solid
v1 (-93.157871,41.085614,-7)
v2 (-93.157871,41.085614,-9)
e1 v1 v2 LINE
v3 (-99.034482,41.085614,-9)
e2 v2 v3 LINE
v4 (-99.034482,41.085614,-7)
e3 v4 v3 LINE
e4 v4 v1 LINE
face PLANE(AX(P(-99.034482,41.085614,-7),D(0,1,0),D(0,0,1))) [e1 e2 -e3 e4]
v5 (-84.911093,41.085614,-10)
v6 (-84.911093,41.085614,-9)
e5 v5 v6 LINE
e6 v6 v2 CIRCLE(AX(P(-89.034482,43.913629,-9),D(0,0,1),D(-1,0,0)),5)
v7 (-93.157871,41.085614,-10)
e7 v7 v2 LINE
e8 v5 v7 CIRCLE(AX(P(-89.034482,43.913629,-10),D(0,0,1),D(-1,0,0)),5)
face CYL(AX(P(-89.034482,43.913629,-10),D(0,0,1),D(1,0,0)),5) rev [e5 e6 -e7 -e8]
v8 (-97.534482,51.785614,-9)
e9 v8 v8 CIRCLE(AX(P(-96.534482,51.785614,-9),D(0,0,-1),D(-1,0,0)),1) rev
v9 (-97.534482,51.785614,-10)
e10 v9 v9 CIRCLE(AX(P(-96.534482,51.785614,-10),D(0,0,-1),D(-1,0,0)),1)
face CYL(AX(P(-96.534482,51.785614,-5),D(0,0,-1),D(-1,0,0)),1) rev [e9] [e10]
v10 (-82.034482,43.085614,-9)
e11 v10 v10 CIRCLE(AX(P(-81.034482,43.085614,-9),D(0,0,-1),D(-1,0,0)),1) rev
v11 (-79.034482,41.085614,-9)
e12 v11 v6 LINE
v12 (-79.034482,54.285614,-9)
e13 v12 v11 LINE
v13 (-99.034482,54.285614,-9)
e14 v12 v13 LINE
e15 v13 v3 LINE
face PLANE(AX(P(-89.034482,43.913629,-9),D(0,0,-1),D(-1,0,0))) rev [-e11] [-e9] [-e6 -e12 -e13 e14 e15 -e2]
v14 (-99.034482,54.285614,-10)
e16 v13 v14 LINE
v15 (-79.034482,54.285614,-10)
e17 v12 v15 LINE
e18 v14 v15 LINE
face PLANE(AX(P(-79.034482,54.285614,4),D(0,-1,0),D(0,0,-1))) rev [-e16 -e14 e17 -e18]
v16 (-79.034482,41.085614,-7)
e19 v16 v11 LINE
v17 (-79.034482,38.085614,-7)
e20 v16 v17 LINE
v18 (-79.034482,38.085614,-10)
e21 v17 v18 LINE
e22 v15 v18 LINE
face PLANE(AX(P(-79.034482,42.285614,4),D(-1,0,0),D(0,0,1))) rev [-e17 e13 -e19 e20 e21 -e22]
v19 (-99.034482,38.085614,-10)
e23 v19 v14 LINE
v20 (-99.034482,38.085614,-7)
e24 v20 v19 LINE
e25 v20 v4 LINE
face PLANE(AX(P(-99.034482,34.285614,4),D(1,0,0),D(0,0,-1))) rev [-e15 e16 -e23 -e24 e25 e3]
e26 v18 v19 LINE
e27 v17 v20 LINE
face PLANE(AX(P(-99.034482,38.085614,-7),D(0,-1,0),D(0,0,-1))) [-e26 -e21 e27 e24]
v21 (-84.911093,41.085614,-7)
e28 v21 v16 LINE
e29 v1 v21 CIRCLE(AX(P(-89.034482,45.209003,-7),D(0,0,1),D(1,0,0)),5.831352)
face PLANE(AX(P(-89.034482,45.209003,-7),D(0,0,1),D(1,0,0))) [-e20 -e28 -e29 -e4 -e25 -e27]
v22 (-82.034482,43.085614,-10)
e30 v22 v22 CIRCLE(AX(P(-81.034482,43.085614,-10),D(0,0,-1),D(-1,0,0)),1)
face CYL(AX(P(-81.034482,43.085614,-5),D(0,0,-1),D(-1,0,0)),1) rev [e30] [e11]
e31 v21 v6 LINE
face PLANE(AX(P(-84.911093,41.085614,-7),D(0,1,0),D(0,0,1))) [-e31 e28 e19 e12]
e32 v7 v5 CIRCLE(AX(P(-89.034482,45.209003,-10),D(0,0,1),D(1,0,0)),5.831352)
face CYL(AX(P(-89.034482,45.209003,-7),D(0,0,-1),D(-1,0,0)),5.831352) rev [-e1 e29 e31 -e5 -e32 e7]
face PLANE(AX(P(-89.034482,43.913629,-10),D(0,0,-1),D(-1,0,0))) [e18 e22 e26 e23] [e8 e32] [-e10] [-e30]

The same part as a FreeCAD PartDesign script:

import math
import FreeCAD as App
import Part
import Sketcher

V = App.Vector
Q = App.Units.Quantity

doc = App.newDocument("Part")
body = doc.addObject("PartDesign::Body", "Body")

# Sketch on XY plane
sketch1 = body.newObject("Sketcher::SketchObject", "Sketch")
sketch1.AttachmentSupport = (doc.getObject("XY_Plane"), [""])
sketch1.MapMode = "FlatFace"
sketch1.addGeometry([
    Part.LineSegment(V(-85.5, 34.3, 0), V(-79, 34.3, 0)),  # 0
    Part.LineSegment(V(-79, 34.3, 0), V(-79, 54.3, 0)),  # 1
    Part.LineSegment(V(-79, 54.3, 0), V(-99, 54.3, 0)),  # 2
    Part.LineSegment(V(-99, 54.3, 0), V(-99, 34.3, 0)),  # 3
    Part.LineSegment(V(-99, 34.3, 0), V(-92.5, 34.3, 0)),  # 4
    Part.LineSegment(V(-92.5, 34.3, 0), V(-92.5, 43.9, 0)),  # 5
    Part.ArcOfCircle(Part.Circle(V(-89, 43.9, 0), V(0, 0, 1), 3.5), math.radians(0), math.radians(180)),  # 6
    Part.LineSegment(V(-85.5, 43.9, 0), V(-85.5, 34.3, 0)),  # 7
    Part.Circle(V(-82, 38.3, 0), V(0, 0, 1), 1.6),  # 8
    Part.Circle(V(-96, 38.3, 0), V(0, 0, 1), 1.6),  # 9
], False)
sketch1.addConstraint([
    Sketcher.Constraint("Coincident", 0, 2, 1, 1),
    Sketcher.Constraint("Coincident", 1, 2, 2, 1),
    Sketcher.Constraint("Coincident", 2, 2, 3, 1),
    Sketcher.Constraint("Coincident", 3, 2, 4, 1),
    Sketcher.Constraint("Coincident", 4, 2, 5, 1),
    Sketcher.Constraint("Tangent", 5, 2, 6, 2),
    Sketcher.Constraint("Tangent", 6, 1, 7, 1),
    Sketcher.Constraint("Coincident", 7, 2, 0, 1),
    Sketcher.Constraint("Horizontal", 0),
    Sketcher.Constraint("Vertical", 1),
    Sketcher.Constraint("Horizontal", 2),
    Sketcher.Constraint("Vertical", 3),
    Sketcher.Constraint("Horizontal", 4),
    Sketcher.Constraint("Vertical", 5),
    Sketcher.Constraint("Vertical", 7),
    Sketcher.Constraint("Equal", 8, 9),
    Sketcher.Constraint("Horizontal", 8, 3, 9, 3),
    Sketcher.Constraint("Horizontal", 0, 2, 3, 2),
    Sketcher.Constraint("Equal", 0, 4),
    Sketcher.Constraint("Equal", 2, 1),
    Sketcher.Constraint("Radius", 6, Q("3.5 mm")),
    Sketcher.Constraint("DistanceX", 2, 2, 2, 1, Q("20 mm")),
    Sketcher.Constraint("DistanceX", 6, 3, 8, 3, Q("7 mm")),
    Sketcher.Constraint("DistanceX", 9, 3, 6, 3, Q("7 mm")),
    Sketcher.Constraint("DistanceY", 0, 2, 8, 3, Q("4 mm")),
    Sketcher.Constraint("Diameter", 8, Q("3.256029 mm")),
    Sketcher.Constraint("DistanceY", 5, 1, 5, 2, Q("9.628014 mm")),
    Sketcher.Constraint("DistanceY", -1, 1, 6, 3, Q("43.913629 mm")),
    Sketcher.Constraint("DistanceX", 6, 3, -1, 1, Q("89.034482 mm")),
])
pad1 = body.newObject("PartDesign::Pad", "Pad")
pad1.Profile = sketch1
pad1.Length = 4

# Sketch on XY plane
sketch2 = body.newObject("Sketcher::SketchObject", "Sketch001")
sketch2.AttachmentSupport = (doc.getObject("XY_Plane"), [""])
sketch2.MapMode = "FlatFace"
sketch2.addGeometry([
    Part.LineSegment(V(-79, 41.1, 0), V(-83.6, 41.1, 0)),  # 0
    Part.ArcOfCircle(Part.Circle(V(-89, 43.9, 0), V(0, 0, 1), 6.1), math.radians(-28), math.radians(208)),  # 1
    Part.LineSegment(V(-94.4, 41.1, 0), V(-99, 41.1, 0)),  # 2
    Part.LineSegment(V(-99, 41.1, 0), V(-99, 54.3, 0)),  # 3
    Part.LineSegment(V(-99, 54.3, 0), V(-79, 54.3, 0)),  # 4
    Part.LineSegment(V(-79, 54.3, 0), V(-79, 41.1, 0)),  # 5
], False)
sketch2.addConstraint([
    Sketcher.Constraint("Coincident", 0, 2, 1, 1),
    Sketcher.Constraint("Coincident", 1, 2, 2, 1),
    Sketcher.Constraint("Coincident", 2, 2, 3, 1),
    Sketcher.Constraint("Coincident", 3, 2, 4, 1),
    Sketcher.Constraint("Coincident", 4, 2, 5, 1),
    Sketcher.Constraint("Coincident", 5, 2, 0, 1),
    Sketcher.Constraint("Horizontal", 0),
    Sketcher.Constraint("Horizontal", 2),
    Sketcher.Constraint("Vertical", 3),
    Sketcher.Constraint("Horizontal", 4),
    Sketcher.Constraint("Vertical", 5),
    Sketcher.Constraint("Horizontal", 0, 2, 1, 2),
    Sketcher.Constraint("Equal", 0, 2),
    Sketcher.Constraint("Radius", 1, Q("6.1 mm")),
    Sketcher.Constraint("DistanceX", 4, 1, 4, 2, Q("20 mm")),
    Sketcher.Constraint("DistanceY", 3, 1, 3, 2, Q("13.2 mm")),
    Sketcher.Constraint("DistanceX", 0, 2, 0, 1, Q("4.595156 mm")),
    Sketcher.Constraint("DistanceY", -1, 1, 1, 3, Q("43.913629 mm")),
    Sketcher.Constraint("DistanceX", 0, 2, -1, 1, Q("83.629639 mm")),
])
pad2 = body.newObject("PartDesign::Pad", "Pad001")
pad2.Profile = sketch2
pad2.Length = 9
pad2.Reversed = True

# Sketch on XZ plane
sketch3 = body.newObject("Sketcher::SketchObject", "Sketch002")
sketch3.AttachmentSupport = (doc.getObject("XZ_Plane"), [""])
sketch3.MapMode = "FlatFace"
sketch3.AttachmentOffset = App.Placement(V(0, 0, -54.285614), App.Rotation())
sketch3.addGeometry([
    Part.Circle(V(-90, -7, 0), V(0, 0, 1), 1.5),
    Part.LineSegment(V(-79, -5.9, 0), V(-79, -8.1, 0)),
    Part.ArcOfCircle(Part.Circle(V(-80, -7, 0), V(0, 0, 1), 1.5), math.radians(48), math.radians(312)),
], False)
sketch3.addConstraint([
    Sketcher.Constraint("Coincident", 1, 1, 2, 1),
    Sketcher.Constraint("Coincident", 2, 2, 1, 2),
    Sketcher.Constraint("Vertical", 1),
    Sketcher.Constraint("Equal", 0, 2),
    Sketcher.Constraint("Horizontal", 0, 3, 2, 3),
    Sketcher.Constraint("Diameter", 0, Q("3 mm")),
    Sketcher.Constraint("DistanceY", 0, 3, -1, 1, Q("7 mm")),
    Sketcher.Constraint("DistanceX", 0, 3, 2, 3, Q("10 mm")),
    Sketcher.Constraint("DistanceX", 2, 3, 1, 1, Q("1 mm")),
    Sketcher.Constraint("DistanceX", 0, 3, -1, 1, Q("90.034482 mm")),
])
pocket1 = body.newObject("PartDesign::Pocket", "Pocket")
pocket1.Profile = sketch3
pocket1.Length = 4
pocket1.Reversed = True

# Sketch on XZ plane
sketch4 = body.newObject("Sketcher::SketchObject", "Sketch003")
sketch4.AttachmentSupport = (doc.getObject("XZ_Plane"), [""])
sketch4.MapMode = "FlatFace"
sketch4.AttachmentOffset = App.Placement(V(0, 0, -54.285614), App.Rotation())
sketch4.addGeometry([
    Part.LineSegment(V(-76, -1, 0), V(-76, -9, 0)),  # 0
    Part.LineSegment(V(-76, -9, 0), V(-79, -9, 0)),  # 1
    Part.LineSegment(V(-79, -9, 0), V(-79, -8.1, 0)),  # 2
    Part.ArcOfCircle(Part.Circle(V(-80, -7, 0), V(0, 0, 1), 1.5), math.radians(-48), math.radians(48)),  # 3
    Part.LineSegment(V(-79, -5.9, 0), V(-79, 4, 0)),  # 4
    Part.LineSegment(V(-79, 4, 0), V(-76, -1, 0)),  # 5
], False)
sketch4.addConstraint([
    Sketcher.Constraint("Coincident", 0, 2, 1, 1),
    Sketcher.Constraint("Coincident", 1, 2, 2, 1),
    Sketcher.Constraint("Coincident", 2, 2, 3, 1),
    Sketcher.Constraint("Coincident", 3, 2, 4, 1),
    Sketcher.Constraint("Coincident", 4, 2, 5, 1),
    Sketcher.Constraint("Coincident", 5, 2, 0, 1),
    Sketcher.Constraint("Vertical", 0),
    Sketcher.Constraint("Horizontal", 1),
    Sketcher.Constraint("Vertical", 2),
    Sketcher.Constraint("Vertical", 4),
    Sketcher.Constraint("Vertical", 2, 2, 3, 2),
    Sketcher.Constraint("Radius", 3, Q("1.5 mm")),
    Sketcher.Constraint("DistanceX", 1, 2, 1, 1, Q("3 mm")),
    Sketcher.Constraint("DistanceY", 0, 2, 0, 1, Q("8 mm")),
    Sketcher.Constraint("DistanceY", 3, 3, -1, 1, Q("7 mm")),
    Sketcher.Constraint("DistanceY", 0, 2, -1, 1, Q("9 mm")),
    Sketcher.Constraint("DistanceY", -1, 1, 4, 2, Q("4 mm")),
    Sketcher.Constraint("DistanceX", 3, 3, 0, 2, Q("4 mm")),
    Sketcher.Constraint("DistanceX", 3, 3, -1, 1, Q("80.034482 mm")),
])
pad3 = body.newObject("PartDesign::Pad", "Pad002")
pad3.Profile = sketch4
pad3.Length = 7

# Sketch on XY plane
sketch5 = body.newObject("Sketcher::SketchObject", "Sketch004")
sketch5.AttachmentSupport = (doc.getObject("XY_Plane"), [""])
sketch5.MapMode = "FlatFace"
sketch5.AttachmentOffset = App.Placement(V(0, 0, -9), App.Rotation())
sketch5.addGeometry([
    Part.LineSegment(V(-92.8, 50.3, 0), V(-92.8, 52.8, 0)),  # 0
    Part.LineSegment(V(-92.8, 52.8, 0), V(-87.2, 52.8, 0)),  # 1
    Part.LineSegment(V(-87.2, 52.8, 0), V(-87.2, 50.3, 0)),  # 2
    Part.LineSegment(V(-87.2, 50.3, 0), V(-92.8, 50.3, 0)),  # 3
    Part.LineSegment(V(-82.8, 50.3, 0), V(-82.8, 52.8, 0)),  # 4
    Part.LineSegment(V(-82.8, 52.8, 0), V(-77.2, 52.8, 0)),  # 5
    Part.LineSegment(V(-77.2, 52.8, 0), V(-77.2, 50.3, 0)),  # 6
    Part.LineSegment(V(-77.2, 50.3, 0), V(-82.8, 50.3, 0)),  # 7
], False)
sketch5.addConstraint([
    Sketcher.Constraint("Coincident", 0, 2, 1, 1),
    Sketcher.Constraint("Coincident", 1, 2, 2, 1),
    Sketcher.Constraint("Coincident", 2, 2, 3, 1),
    Sketcher.Constraint("Coincident", 3, 2, 0, 1),
    Sketcher.Constraint("Coincident", 4, 2, 5, 1),
    Sketcher.Constraint("Coincident", 5, 2, 6, 1),
    Sketcher.Constraint("Coincident", 6, 2, 7, 1),
    Sketcher.Constraint("Coincident", 7, 2, 4, 1),
    Sketcher.Constraint("Vertical", 0),
    Sketcher.Constraint("Horizontal", 1),
    Sketcher.Constraint("Vertical", 2),
    Sketcher.Constraint("Horizontal", 3),
    Sketcher.Constraint("Vertical", 4),
    Sketcher.Constraint("Horizontal", 5),
    Sketcher.Constraint("Vertical", 6),
    Sketcher.Constraint("Horizontal", 7),
    Sketcher.Constraint("Horizontal", 1, 2, 4, 2),
    Sketcher.Constraint("Horizontal", 3, 2, 6, 2),
    Sketcher.Constraint("Equal", 3, 5),
    Sketcher.Constraint("DistanceX", 1, 1, 1, 2, Q("5.6 mm")),
    Sketcher.Constraint("DistanceY", 0, 1, 0, 2, Q("2.5 mm")),
    Sketcher.Constraint("DistanceX", 0, 2, 4, 2, Q("10 mm")),
    Sketcher.Constraint("DistanceX", 0, 2, -1, 1, Q("92.834482 mm")),
    Sketcher.Constraint("DistanceY", -1, 1, 0, 2, Q("52.785614 mm")),
])
pocket2 = body.newObject("PartDesign::Pocket", "Pocket001")
pocket2.Profile = sketch5
pocket2.Length = 4.8
pocket2.Reversed = True

# Sketch on XY plane
sketch6 = body.newObject("Sketcher::SketchObject", "Sketch005")
sketch6.AttachmentSupport = (doc.getObject("XY_Plane"), [""])
sketch6.MapMode = "FlatFace"
sketch6.AttachmentOffset = App.Placement(V(0, 0, -9), App.Rotation())
sketch6.addGeometry([
    Part.Circle(V(-96.5, 51.8, 0), V(0, 0, 1), 1),
    Part.Circle(V(-81, 43.1, 0), V(0, 0, 1), 1),
], False)
sketch6.addConstraint([
    Sketcher.Constraint("Equal", 0, 1),
    Sketcher.Constraint("Diameter", 0, Q("2 mm")),
    Sketcher.Constraint("DistanceX", 0, 3, 1, 3, Q("15.5 mm")),
    Sketcher.Constraint("DistanceY", 1, 3, 0, 3, Q("8.7 mm")),
    Sketcher.Constraint("DistanceX", 0, 3, -1, 1, Q("96.534482 mm")),
    Sketcher.Constraint("DistanceY", -1, 1, 0, 3, Q("51.785614 mm")),
])
pocket3 = body.newObject("PartDesign::Pocket", "Pocket002")
pocket3.Profile = sketch6
pocket3.Length = 4
pocket3.Reversed = True

# Sketch on XY plane
sketch7 = body.newObject("Sketcher::SketchObject", "Sketch006")
sketch7.AttachmentSupport = (doc.getObject("XY_Plane"), [""])
sketch7.MapMode = "FlatFace"
sketch7.AttachmentOffset = App.Placement(V(0, 0, -10), App.Rotation())
sketch7.addGeometry([
    Part.LineSegment(V(-99, 41.1, 0), V(-99, 54.3, 0)),  # 0
    Part.LineSegment(V(-99, 54.3, 0), V(-76, 54.3, 0)),  # 1
    Part.LineSegment(V(-76, 54.3, 0), V(-76, 47.3, 0)),  # 2
    Part.LineSegment(V(-76, 47.3, 0), V(-79, 47.3, 0)),  # 3
    Part.LineSegment(V(-79, 47.3, 0), V(-79, 41.1, 0)),  # 4
    Part.LineSegment(V(-79, 41.1, 0), V(-84.9, 41.1, 0)),  # 5
    Part.ArcOfCircle(Part.Circle(V(-89, 43.9, 0), V(0, 0, 1), 5), math.radians(-34), math.radians(214)),  # 6
    Part.LineSegment(V(-93.2, 41.1, 0), V(-99, 41.1, 0)),  # 7
    Part.Circle(V(-81, 43.1, 0), V(0, 0, 1), 1),  # 8
    Part.LineSegment(V(-82.8, 50.3, 0), V(-77.2, 50.3, 0)),  # 9
    Part.LineSegment(V(-77.2, 50.3, 0), V(-77.2, 52.8, 0)),  # 10
    Part.LineSegment(V(-77.2, 52.8, 0), V(-82.8, 52.8, 0)),  # 11
    Part.LineSegment(V(-82.8, 52.8, 0), V(-82.8, 50.3, 0)),  # 12
    Part.LineSegment(V(-92.8, 50.3, 0), V(-87.2, 50.3, 0)),  # 13
    Part.LineSegment(V(-87.2, 50.3, 0), V(-87.2, 52.8, 0)),  # 14
    Part.LineSegment(V(-87.2, 52.8, 0), V(-92.8, 52.8, 0)),  # 15
    Part.LineSegment(V(-92.8, 52.8, 0), V(-92.8, 50.3, 0)),  # 16
    Part.Circle(V(-96.5, 51.8, 0), V(0, 0, 1), 1),  # 17
], False)
sketch7.addConstraint([
    Sketcher.Constraint("Coincident", 0, 2, 1, 1),
    Sketcher.Constraint("Coincident", 1, 2, 2, 1),
    Sketcher.Constraint("Coincident", 2, 2, 3, 1),
    Sketcher.Constraint("Coincident", 3, 2, 4, 1),
    Sketcher.Constraint("Coincident", 4, 2, 5, 1),
    Sketcher.Constraint("Coincident", 5, 2, 6, 1),
    Sketcher.Constraint("Coincident", 6, 2, 7, 1),
    Sketcher.Constraint("Coincident", 7, 2, 0, 1),
    Sketcher.Constraint("Coincident", 9, 2, 10, 1),
    Sketcher.Constraint("Coincident", 10, 2, 11, 1),
    Sketcher.Constraint("Coincident", 11, 2, 12, 1),
    Sketcher.Constraint("Coincident", 12, 2, 9, 1),
    Sketcher.Constraint("Coincident", 13, 2, 14, 1),
    Sketcher.Constraint("Coincident", 14, 2, 15, 1),
    Sketcher.Constraint("Coincident", 15, 2, 16, 1),
    Sketcher.Constraint("Coincident", 16, 2, 13, 1),
    Sketcher.Constraint("Vertical", 0),
    Sketcher.Constraint("Horizontal", 1),
    Sketcher.Constraint("Vertical", 2),
    Sketcher.Constraint("Horizontal", 3),
    Sketcher.Constraint("Vertical", 4),
    Sketcher.Constraint("Horizontal", 5),
    Sketcher.Constraint("Horizontal", 7),
    Sketcher.Constraint("Horizontal", 9),
    Sketcher.Constraint("Vertical", 10),
    Sketcher.Constraint("Horizontal", 11),
    Sketcher.Constraint("Vertical", 12),
    Sketcher.Constraint("Horizontal", 13),
    Sketcher.Constraint("Vertical", 14),
    Sketcher.Constraint("Horizontal", 15),
    Sketcher.Constraint("Vertical", 16),
    Sketcher.Constraint("Equal", 8, 17),
    Sketcher.Constraint("Horizontal", 5, 2, 6, 2),
    Sketcher.Constraint("Horizontal", 12, 2, 13, 2),
    Sketcher.Constraint("Horizontal", 11, 2, 14, 2),
    Sketcher.Constraint("Equal", 5, 7),
    Sketcher.Constraint("Equal", 11, 13),
    Sketcher.Constraint("Diameter", 8, Q("2 mm")),
    Sketcher.Constraint("Radius", 6, Q("5 mm")),
    Sketcher.Constraint("DistanceX", 1, 1, 1, 2, Q("23 mm")),
    Sketcher.Constraint("DistanceX", 3, 2, 3, 1, Q("3 mm")),
    Sketcher.Constraint("DistanceY", 2, 2, 2, 1, Q("7 mm")),
    Sketcher.Constraint("DistanceX", 9, 1, 9, 2, Q("5.6 mm")),
    Sketcher.Constraint("DistanceY", 0, 1, 0, 2, Q("13.2 mm")),
    Sketcher.Constraint("DistanceY", 10, 1, 10, 2, Q("2.5 mm")),
    Sketcher.Constraint("DistanceX", 6, 3, 8, 3, Q("8 mm")),
    Sketcher.Constraint("DistanceY", 4, 2, 8, 3, Q("2 mm")),
    Sketcher.Constraint("DistanceY", 2, 2, 9, 2, Q("3 mm")),
    Sketcher.Constraint("DistanceY", 17, 3, 14, 2, Q("1 mm")),
    Sketcher.Constraint("DistanceX", 17, 3, 6, 3, Q("7.5 mm")),
    Sketcher.Constraint("DistanceX", 9, 2, 2, 2, Q("1.2 mm")),
    Sketcher.Constraint("DistanceX", 13, 2, 12, 2, Q("4.4 mm")),
    Sketcher.Constraint("DistanceX", 5, 2, 5, 1, Q("5.876611 mm")),
    Sketcher.Constraint("DistanceY", -1, 1, 6, 3, Q("43.913629 mm")),
    Sketcher.Constraint("DistanceX", 6, 2, -1, 1, Q("93.157871 mm")),
])
pad4 = body.newObject("PartDesign::Pad", "Pad003")
pad4.Profile = sketch7
pad4.Length = 1

# Sketch on XY plane
sketch8 = body.newObject("Sketcher::SketchObject", "Sketch007")
sketch8.AttachmentSupport = (doc.getObject("XY_Plane"), [""])
sketch8.MapMode = "FlatFace"
sketch8.AttachmentOffset = App.Placement(V(0, 0, 4), App.Rotation())
sketch8.addGeometry([
    Part.LineSegment(V(-99, 54, 0), V(-99, 34, 0)),
    Part.LineSegment(V(-99, 34, 0), V(-72, 34, 0)),
    Part.LineSegment(V(-72, 34, 0), V(-72, 54, 0)),
    Part.LineSegment(V(-72, 54, 0), V(-99, 54, 0)),
], False)
sketch8.addConstraint([
    Sketcher.Constraint("Coincident", 0, 2, 1, 1),
    Sketcher.Constraint("Coincident", 1, 2, 2, 1),
    Sketcher.Constraint("Coincident", 2, 2, 3, 1),
    Sketcher.Constraint("Coincident", 3, 2, 0, 1),
    Sketcher.Constraint("Vertical", 0),
    Sketcher.Constraint("Horizontal", 1),
    Sketcher.Constraint("Vertical", 2),
    Sketcher.Constraint("Horizontal", 3),
    Sketcher.Constraint("DistanceY", 0, 2, 0, 1, Q("20 mm")),
    Sketcher.Constraint("DistanceX", 1, 1, 1, 2, Q("27.503266 mm")),
    Sketcher.Constraint("DistanceX", 0, 2, -1, 1, Q("99.034482 mm")),
    Sketcher.Constraint("DistanceY", -1, 1, 0, 2, Q("34.285614 mm")),
])
pocket4 = body.newObject("PartDesign::Pocket", "Pocket003")
pocket4.Profile = sketch8
pocket4.Length = 13

# Sketch on XY plane
sketch9 = body.newObject("Sketcher::SketchObject", "Sketch008")
sketch9.AttachmentSupport = (doc.getObject("XY_Plane"), [""])
sketch9.MapMode = "FlatFace"
sketch9.AttachmentOffset = App.Placement(V(0, 0, -10), App.Rotation())
sketch9.addGeometry([
    Part.LineSegment(V(-87.2, 52.8, 0), V(-87.2, 50.3, 0)),  # 0
    Part.LineSegment(V(-87.2, 50.3, 0), V(-92.8, 50.3, 0)),  # 1
    Part.LineSegment(V(-92.8, 50.3, 0), V(-92.8, 52.8, 0)),  # 2
    Part.LineSegment(V(-92.8, 52.8, 0), V(-87.2, 52.8, 0)),  # 3
    Part.LineSegment(V(-77.2, 52.8, 0), V(-77.2, 50.3, 0)),  # 4
    Part.LineSegment(V(-77.2, 50.3, 0), V(-82.8, 50.3, 0)),  # 5
    Part.LineSegment(V(-82.8, 50.3, 0), V(-82.8, 52.8, 0)),  # 6
    Part.LineSegment(V(-82.8, 52.8, 0), V(-77.2, 52.8, 0)),  # 7
], False)
sketch9.addConstraint([
    Sketcher.Constraint("Coincident", 0, 2, 1, 1),
    Sketcher.Constraint("Coincident", 1, 2, 2, 1),
    Sketcher.Constraint("Coincident", 2, 2, 3, 1),
    Sketcher.Constraint("Coincident", 3, 2, 0, 1),
    Sketcher.Constraint("Coincident", 4, 2, 5, 1),
    Sketcher.Constraint("Coincident", 5, 2, 6, 1),
    Sketcher.Constraint("Coincident", 6, 2, 7, 1),
    Sketcher.Constraint("Coincident", 7, 2, 4, 1),
    Sketcher.Constraint("Vertical", 0),
    Sketcher.Constraint("Horizontal", 1),
    Sketcher.Constraint("Vertical", 2),
    Sketcher.Constraint("Horizontal", 3),
    Sketcher.Constraint("Vertical", 4),
    Sketcher.Constraint("Horizontal", 5),
    Sketcher.Constraint("Vertical", 6),
    Sketcher.Constraint("Horizontal", 7),
    Sketcher.Constraint("Horizontal", 1, 2, 4, 2),
    Sketcher.Constraint("Horizontal", 3, 2, 6, 2),
    Sketcher.Constraint("Equal", 3, 5),
    Sketcher.Constraint("DistanceX", 1, 2, 1, 1, Q("5.6 mm")),
    Sketcher.Constraint("DistanceY", 0, 2, 0, 1, Q("2.5 mm")),
    Sketcher.Constraint("DistanceX", 0, 2, 4, 2, Q("10 mm")),
    Sketcher.Constraint("DistanceX", 0, 2, -1, 1, Q("87.234482 mm")),
    Sketcher.Constraint("DistanceY", -1, 1, 0, 2, Q("50.285614 mm")),
])
pad5 = body.newObject("PartDesign::Pad", "Pad004")
pad5.Profile = sketch9
pad5.Length = 1

# Sketch on XY plane
sketch10 = body.newObject("Sketcher::SketchObject", "Sketch009")
sketch10.AttachmentSupport = (doc.getObject("XY_Plane"), [""])
sketch10.MapMode = "FlatFace"
sketch10.AttachmentOffset = App.Placement(V(0, 0, -10), App.Rotation())
sketch10.addGeometry([
    Part.LineSegment(V(-99, 38.1, 0), V(-99, 41.1, 0)),  # 0
    Part.LineSegment(V(-99, 41.1, 0), V(-93.2, 41.1, 0)),  # 1
    Part.ArcOfCircle(Part.Circle(V(-89, 45.2, 0), V(0, 0, 1), 5.8), math.radians(-135), math.radians(-45)),  # 2
    Part.LineSegment(V(-84.9, 41.1, 0), V(-79, 41.1, 0)),  # 3
    Part.LineSegment(V(-79, 41.1, 0), V(-79, 38.1, 0)),  # 4
    Part.LineSegment(V(-79, 38.1, 0), V(-99, 38.1, 0)),  # 5
], False)
sketch10.addConstraint([
    Sketcher.Constraint("Coincident", 0, 2, 1, 1),
    Sketcher.Constraint("Coincident", 1, 2, 2, 1),
    Sketcher.Constraint("Coincident", 2, 2, 3, 1),
    Sketcher.Constraint("Coincident", 3, 2, 4, 1),
    Sketcher.Constraint("Coincident", 4, 2, 5, 1),
    Sketcher.Constraint("Coincident", 5, 2, 0, 1),
    Sketcher.Constraint("Vertical", 0),
    Sketcher.Constraint("Horizontal", 1),
    Sketcher.Constraint("Horizontal", 3),
    Sketcher.Constraint("Vertical", 4),
    Sketcher.Constraint("Horizontal", 5),
    Sketcher.Constraint("Horizontal", 1, 2, 2, 2),
    Sketcher.Constraint("Equal", 1, 3),
    Sketcher.Constraint("DistanceX", 5, 2, 5, 1, Q("20 mm")),
    Sketcher.Constraint("DistanceY", 0, 1, 0, 2, Q("3 mm")),
    Sketcher.Constraint("Radius", 2, Q("5.831352 mm")),
    Sketcher.Constraint("DistanceX", 1, 1, 1, 2, Q("5.876611 mm")),
    Sketcher.Constraint("DistanceX", 1, 2, -1, 1, Q("93.157871 mm")),
    Sketcher.Constraint("DistanceY", -1, 1, 2, 3, Q("45.209003 mm")),
])
pad6 = body.newObject("PartDesign::Pad", "Pad005")
pad6.Profile = sketch10
pad6.Length = 3

# Sketch on XY plane
sketch11 = body.newObject("Sketcher::SketchObject", "Sketch010")
sketch11.AttachmentSupport = (doc.getObject("XY_Plane"), [""])
sketch11.MapMode = "FlatFace"
sketch11.AttachmentOffset = App.Placement(V(0, 0, -10), App.Rotation())
sketch11.addGeometry([
    Part.LineSegment(V(-76, 54.3, 0), V(-76, 47.3, 0)),
    Part.LineSegment(V(-76, 47.3, 0), V(-79, 47.3, 0)),
    Part.LineSegment(V(-79, 47.3, 0), V(-79, 54.3, 0)),
    Part.LineSegment(V(-79, 54.3, 0), V(-76, 54.3, 0)),
], False)
sketch11.addConstraint([
    Sketcher.Constraint("Coincident", 0, 2, 1, 1),
    Sketcher.Constraint("Coincident", 1, 2, 2, 1),
    Sketcher.Constraint("Coincident", 2, 2, 3, 1),
    Sketcher.Constraint("Coincident", 3, 2, 0, 1),
    Sketcher.Constraint("Vertical", 0),
    Sketcher.Constraint("Horizontal", 1),
    Sketcher.Constraint("Vertical", 2),
    Sketcher.Constraint("Horizontal", 3),
    Sketcher.Constraint("DistanceX", 1, 2, 1, 1, Q("3 mm")),
    Sketcher.Constraint("DistanceY", 0, 2, 0, 1, Q("7 mm")),
    Sketcher.Constraint("DistanceX", 0, 2, -1, 1, Q("76.034482 mm")),
    Sketcher.Constraint("DistanceY", -1, 1, 0, 2, Q("47.285614 mm")),
])
pocket5 = body.newObject("PartDesign::Pocket", "Pocket004")
pocket5.Profile = sketch11
pocket5.Length = 3
pocket5.Reversed = True

doc.recompute()
